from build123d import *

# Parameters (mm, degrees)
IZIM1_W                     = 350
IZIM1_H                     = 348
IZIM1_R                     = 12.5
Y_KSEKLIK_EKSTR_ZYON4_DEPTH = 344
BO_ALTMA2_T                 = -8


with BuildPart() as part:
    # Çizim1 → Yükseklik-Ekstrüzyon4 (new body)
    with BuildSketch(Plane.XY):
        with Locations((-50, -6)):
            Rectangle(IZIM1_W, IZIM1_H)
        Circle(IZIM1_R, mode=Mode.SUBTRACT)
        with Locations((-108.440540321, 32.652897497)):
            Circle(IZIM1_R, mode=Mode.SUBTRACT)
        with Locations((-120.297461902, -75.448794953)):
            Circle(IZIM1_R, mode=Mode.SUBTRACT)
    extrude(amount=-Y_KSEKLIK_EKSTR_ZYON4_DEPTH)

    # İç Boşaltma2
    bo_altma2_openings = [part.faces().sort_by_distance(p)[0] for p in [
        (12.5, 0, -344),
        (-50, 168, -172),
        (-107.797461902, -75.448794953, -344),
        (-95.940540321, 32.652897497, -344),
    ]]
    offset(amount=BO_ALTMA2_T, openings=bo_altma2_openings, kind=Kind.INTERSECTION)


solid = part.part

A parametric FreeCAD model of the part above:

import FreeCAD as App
import Part
import Sketcher
from FreeCAD import Vector


def faces_at(feature, points):
    """Names of the faces that lie closest to the given points."""
    faces = feature.Shape.Faces
    near = lambda p: min(range(len(faces)), key=lambda i: faces[i].distToShape(Part.Vertex(*p))[0])
    return sorted({f"Face{near(p) + 1}" for p in points})

doc = App.newDocument("Part")
params = doc.addObject("Spreadsheet::Sheet", "Params")
for row, (alias, value) in enumerate([
    ("sketch1_diameter", "25 mm"),
    ("sketch1_width", "350 mm"),
    ("sketch1_height", "348 mm"),
    ("pad1_length", "344 mm"),
    ("thickness_wall", "8 mm"),
], start=1):
    params.set(f"A{row}", alias)
    params.set(f"B{row}", "=" + value)
    params.setAlias(f"B{row}", alias)

body = doc.addObject("PartDesign::Body", "Body")

# Sketch on XY plane
sketch1 = body.newObject("Sketcher::SketchObject", "Sketch")
sketch1.AttachmentSupport = (doc.getObject("XY_Plane"), [""])
sketch1.MapMode = "FlatFace"
sketch1.addGeometry([
    Part.LineSegment(Vector(-225, 168, 0), Vector(-225, -180, 0)),  # 0
    Part.LineSegment(Vector(-225, -180, 0), Vector(125, -180, 0)),  # 1
    Part.LineSegment(Vector(125, -180, 0), Vector(125, 168, 0)),  # 2
    Part.LineSegment(Vector(125, 168, 0), Vector(-225, 168, 0)),  # 3
    Part.Circle(Vector(-120, -75, 0), Vector(0, 0, 1), 12),  # 4
    Part.Circle(Vector(-108, 33, 0), Vector(0, 0, 1), 12),  # 5
    Part.Circle(Vector(0, 0, 0), Vector(0, 0, 1), 12),  # 6
], False)
sketch1.addConstraint([
    Sketcher.Constraint("Coincident", 0, 2, 1, 1),
    Sketcher.Constraint("Coincident", 1, 2, 2, 1),
    Sketcher.Constraint("Coincident", 2, 2, 3, 1),
    Sketcher.Constraint("Coincident", 3, 2, 0, 1),
    Sketcher.Constraint("Vertical", 0),
    Sketcher.Constraint("Horizontal", 1),
    Sketcher.Constraint("Vertical", 2),
    Sketcher.Constraint("Horizontal", 3),
    Sketcher.Constraint("Coincident", 6, 3, -1, 1),
    Sketcher.Constraint("Equal", 4, 5),
    Sketcher.Constraint("Equal", 5, 6),
    Sketcher.Constraint("Diameter", 4, 25.0),
    Sketcher.Constraint("DistanceX", 1, 1, 1, 2, 350.0),
    Sketcher.Constraint("DistanceY", 0, 2, 0, 1, 348.0),
    Sketcher.Constraint("DistanceX", 0, 2, -1, 1, 225.0),
    Sketcher.Constraint("DistanceY", 0, 2, -1, 1, 180.0),
    Sketcher.Constraint("DistanceX", 4, 3, -1, 1, 120.297462),
    Sketcher.Constraint("DistanceX", 5, 3, -1, 1, 108.44054),
    Sketcher.Constraint("DistanceY", 4, 3, -1, 1, 75.448795),
    Sketcher.Constraint("DistanceY", -1, 1, 5, 3, 32.652897),
])
sketch1.setExpression("Constraints[11]", "Params.sketch1_diameter")
sketch1.setExpression("Constraints[12]", "Params.sketch1_width")
sketch1.setExpression("Constraints[13]", "Params.sketch1_height")
pad1 = body.newObject("PartDesign::Pad", "Pad")
pad1.Profile = sketch1
pad1.setExpression("Length", "Params.pad1_length")
pad1.Reversed = True
doc.recompute()

thickness = body.newObject("PartDesign::Thickness", "Thickness")
thickness.Base = (pad1, faces_at(pad1, [
    (-12.5, 0, -172),
    (-50, 168, -172),
    (-132.797, -75.449, -172),
    (-120.941, 32.653, -172),
]))
thickness.setExpression("Value", "Params.thickness_wall")
thickness.Reversed = True
thickness.Join = "Intersection"

doc.recompute()
